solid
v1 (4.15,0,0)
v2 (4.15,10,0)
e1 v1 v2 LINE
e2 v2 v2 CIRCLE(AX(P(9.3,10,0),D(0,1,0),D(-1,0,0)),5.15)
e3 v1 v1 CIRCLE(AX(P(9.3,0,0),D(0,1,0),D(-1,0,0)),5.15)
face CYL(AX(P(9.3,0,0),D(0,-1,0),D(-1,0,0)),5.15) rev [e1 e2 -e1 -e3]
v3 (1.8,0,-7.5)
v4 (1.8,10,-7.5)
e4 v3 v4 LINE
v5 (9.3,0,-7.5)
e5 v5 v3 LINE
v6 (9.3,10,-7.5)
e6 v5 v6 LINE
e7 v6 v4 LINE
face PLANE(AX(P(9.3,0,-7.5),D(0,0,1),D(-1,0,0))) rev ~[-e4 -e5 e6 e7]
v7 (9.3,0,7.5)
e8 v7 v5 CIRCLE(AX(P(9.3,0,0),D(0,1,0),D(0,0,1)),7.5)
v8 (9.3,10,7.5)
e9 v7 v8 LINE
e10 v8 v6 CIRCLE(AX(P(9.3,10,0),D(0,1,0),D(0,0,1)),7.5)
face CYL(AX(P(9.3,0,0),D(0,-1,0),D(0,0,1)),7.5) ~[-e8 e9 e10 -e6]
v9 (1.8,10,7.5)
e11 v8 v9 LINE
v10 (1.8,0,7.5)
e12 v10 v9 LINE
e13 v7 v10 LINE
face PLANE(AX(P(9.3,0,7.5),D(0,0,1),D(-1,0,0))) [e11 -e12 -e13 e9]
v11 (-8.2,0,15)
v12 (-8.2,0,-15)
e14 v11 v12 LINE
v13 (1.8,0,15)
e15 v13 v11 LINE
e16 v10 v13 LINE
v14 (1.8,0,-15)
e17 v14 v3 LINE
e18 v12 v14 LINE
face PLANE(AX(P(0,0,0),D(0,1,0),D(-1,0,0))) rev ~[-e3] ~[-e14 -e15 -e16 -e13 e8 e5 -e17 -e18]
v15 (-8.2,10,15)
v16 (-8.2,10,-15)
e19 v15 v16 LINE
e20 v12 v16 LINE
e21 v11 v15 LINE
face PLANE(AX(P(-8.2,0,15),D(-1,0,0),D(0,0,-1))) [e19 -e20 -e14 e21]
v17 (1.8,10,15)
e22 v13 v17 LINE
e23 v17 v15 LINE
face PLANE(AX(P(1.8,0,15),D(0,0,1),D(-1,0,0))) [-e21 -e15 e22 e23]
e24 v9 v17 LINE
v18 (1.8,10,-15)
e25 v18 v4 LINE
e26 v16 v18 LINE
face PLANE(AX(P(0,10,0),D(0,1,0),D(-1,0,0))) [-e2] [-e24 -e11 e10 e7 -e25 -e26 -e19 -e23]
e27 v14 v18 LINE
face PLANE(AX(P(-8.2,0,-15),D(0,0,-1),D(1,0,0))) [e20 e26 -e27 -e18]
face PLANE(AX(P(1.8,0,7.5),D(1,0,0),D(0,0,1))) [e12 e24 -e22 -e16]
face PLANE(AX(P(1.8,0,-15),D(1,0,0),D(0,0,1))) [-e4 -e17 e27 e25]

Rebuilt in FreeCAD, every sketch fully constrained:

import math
import FreeCAD as App
import Part
import Sketcher
from FreeCAD import Vector
Q = App.Units.Quantity

doc = App.newDocument("Part")
body = doc.addObject("PartDesign::Body", "Body")

sketch1 = body.newObject("Sketcher::SketchObject", "Sketch")
sketch1.AttachmentSupport = (doc.getObject("XZ_Plane"), [""])
sketch1.MapMode = "FlatFace"
sketch1.addGeometry([
    Part.LineSegment(Vector(-8, 15, 0), Vector(2, 15, 0)),
    Part.LineSegment(Vector(2, 15, 0), Vector(2, 8, 0)),
    Part.LineSegment(Vector(2, 8, 0), Vector(9, 8, 0)),
    Part.ArcOfCircle(Part.Circle(Vector(9, 0, 0), Vector(0, 0, 1), 8), math.radians(-90), math.radians(90)),
    Part.LineSegment(Vector(9, -8, 0), Vector(2, -8, 0)),
    Part.LineSegment(Vector(2, -8, 0), Vector(2, -15, 0)),
    Part.LineSegment(Vector(2, -15, 0), Vector(-8, -15, 0)),
    Part.LineSegment(Vector(-8, -15, 0), Vector(-8, 15, 0)),
    Part.Circle(Vector(9, 0, 0), Vector(0, 0, 1), 5),
], False)
sketch1.addConstraint([
    Sketcher.Constraint("Coincident", 0, 2, 1, 1),
    Sketcher.Constraint("Coincident", 1, 2, 2, 1),
    Sketcher.Constraint("Tangent", 2, 2, 3, 2),
    Sketcher.Constraint("Tangent", 3, 1, 4, 1),
    Sketcher.Constraint("Coincident", 4, 2, 5, 1),
    Sketcher.Constraint("Coincident", 5, 2, 6, 1),
    Sketcher.Constraint("Coincident", 6, 2, 7, 1),
    Sketcher.Constraint("Coincident", 7, 2, 0, 1),
    Sketcher.Constraint("Horizontal", 0),
    Sketcher.Constraint("Vertical", 1),
    Sketcher.Constraint("Horizontal", 2),
    Sketcher.Constraint("Horizontal", 4),
    Sketcher.Constraint("Vertical", 5),
    Sketcher.Constraint("Horizontal", 6),
    Sketcher.Constraint("Vertical", 7),
    Sketcher.Constraint("Coincident", 8, 3, 3, 3),
    Sketcher.Constraint("Symmetric", 1, 2, 4, 2, -1),
    Sketcher.Constraint("Equal", 4, 1),
    Sketcher.Constraint("Equal", 1, 5),
    Sketcher.Constraint("Diameter", 8, Q("10.3 mm")),
    Sketcher.Constraint("Radius", 3, Q("7.5 mm")),
    Sketcher.Constraint("DistanceX", 0, 1, 0, 2, Q("10 mm")),
    Sketcher.Constraint("DistanceY", 7, 1, 7, 2, Q("30 mm")),
    Sketcher.Constraint("DistanceX", -1, 1, 0, 2, Q("1.8 mm")),
])
pad1 = body.newObject("PartDesign::Pad", "Pad")
pad1.Profile = sketch1
pad1.Length = 10
pad1.Reversed = True

doc.recompute()
